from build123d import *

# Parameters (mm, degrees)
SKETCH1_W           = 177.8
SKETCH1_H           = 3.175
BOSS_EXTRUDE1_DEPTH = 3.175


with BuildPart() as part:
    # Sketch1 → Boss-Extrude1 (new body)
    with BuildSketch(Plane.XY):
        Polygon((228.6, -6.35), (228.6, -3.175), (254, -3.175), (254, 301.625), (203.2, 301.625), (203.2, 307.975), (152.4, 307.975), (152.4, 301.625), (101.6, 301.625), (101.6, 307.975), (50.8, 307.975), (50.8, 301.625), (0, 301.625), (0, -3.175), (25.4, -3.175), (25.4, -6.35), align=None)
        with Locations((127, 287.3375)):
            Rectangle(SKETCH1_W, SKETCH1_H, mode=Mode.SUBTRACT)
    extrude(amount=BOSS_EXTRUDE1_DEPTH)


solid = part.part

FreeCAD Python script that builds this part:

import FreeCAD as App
import Part
import Sketcher
Q = App.Units.Quantity

doc = App.newDocument("Part")
body = doc.addObject("PartDesign::Body", "Body")

# Sketch on XY plane
sketch1 = doc.addObject("Sketcher::SketchObject", "Sketch")
body.addObject(sketch1)
sketch1.AttachmentSupport = (doc.XY_Plane, [""])
sketch1.MapMode = "FlatFace"
sketch1.addGeometry(Part.LineSegment(App.Vector(228.6, -6.3, 0), App.Vector(228.6, -3.2, 0)), False)
sketch1.addGeometry(Part.LineSegment(App.Vector(228.6, -3.2, 0), App.Vector(254, -3.2, 0)), False)
sketch1.addGeometry(Part.LineSegment(App.Vector(254, -3.2, 0), App.Vector(254, 301.6, 0)), False)
sketch1.addGeometry(Part.LineSegment(App.Vector(254, 301.6, 0), App.Vector(203.2, 301.6, 0)), False)
sketch1.addGeometry(Part.LineSegment(App.Vector(203.2, 301.6, 0), App.Vector(203.2, 308, 0)), False)
sketch1.addGeometry(Part.LineSegment(App.Vector(203.2, 308, 0), App.Vector(152.4, 308, 0)), False)
sketch1.addGeometry(Part.LineSegment(App.Vector(152.4, 308, 0), App.Vector(152.4, 301.6, 0)), False)
sketch1.addGeometry(Part.LineSegment(App.Vector(152.4, 301.6, 0), App.Vector(101.6, 301.6, 0)), False)
sketch1.addGeometry(Part.LineSegment(App.Vector(101.6, 301.6, 0), App.Vector(101.6, 308, 0)), False)
sketch1.addGeometry(Part.LineSegment(App.Vector(101.6, 308, 0), App.Vector(50.8, 308, 0)), False)
sketch1.addGeometry(Part.LineSegment(App.Vector(50.8, 308, 0), App.Vector(50.8, 301.6, 0)), False)
sketch1.addGeometry(Part.LineSegment(App.Vector(50.8, 301.6, 0), App.Vector(0, 301.6, 0)), False)
sketch1.addGeometry(Part.LineSegment(App.Vector(0, 301.6, 0), App.Vector(0, -3.2, 0)), False)
sketch1.addGeometry(Part.LineSegment(App.Vector(0, -3.2, 0), App.Vector(25.4, -3.2, 0)), False)
sketch1.addGeometry(Part.LineSegment(App.Vector(25.4, -3.2, 0), App.Vector(25.4, -6.3, 0)), False)
sketch1.addGeometry(Part.LineSegment(App.Vector(25.4, -6.3, 0), App.Vector(228.6, -6.3, 0)), False)
sketch1.addGeometry(Part.LineSegment(App.Vector(215.9, 285.8, 0), App.Vector(38.1, 285.8, 0)), False)
sketch1.addGeometry(Part.LineSegment(App.Vector(38.1, 285.8, 0), App.Vector(38.1, 288.9, 0)), False)
sketch1.addGeometry(Part.LineSegment(App.Vector(38.1, 288.9, 0), App.Vector(215.9, 288.9, 0)), False)
sketch1.addGeometry(Part.LineSegment(App.Vector(215.9, 288.9, 0), App.Vector(215.9, 285.8, 0)), False)
sketch1.addConstraint(Sketcher.Constraint("Coincident", 0, 2, 1, 1))
sketch1.addConstraint(Sketcher.Constraint("Coincident", 1, 2, 2, 1))
sketch1.addConstraint(Sketcher.Constraint("Coincident", 2, 2, 3, 1))
sketch1.addConstraint(Sketcher.Constraint("Coincident", 3, 2, 4, 1))
sketch1.addConstraint(Sketcher.Constraint("Coincident", 4, 2, 5, 1))
sketch1.addConstraint(Sketcher.Constraint("Coincident", 5, 2, 6, 1))
sketch1.addConstraint(Sketcher.Constraint("Coincident", 6, 2, 7, 1))
sketch1.addConstraint(Sketcher.Constraint("Coincident", 7, 2, 8, 1))
sketch1.addConstraint(Sketcher.Constraint("Coincident", 8, 2, 9, 1))
sketch1.addConstraint(Sketcher.Constraint("Coincident", 9, 2, 10, 1))
sketch1.addConstraint(Sketcher.Constraint("Coincident", 10, 2, 11, 1))
sketch1.addConstraint(Sketcher.Constraint("Coincident", 11, 2, 12, 1))
sketch1.addConstraint(Sketcher.Constraint("Coincident", 12, 2, 13, 1))
sketch1.addConstraint(Sketcher.Constraint("Coincident", 13, 2, 14, 1))
sketch1.addConstraint(Sketcher.Constraint("Coincident", 14, 2, 15, 1))
sketch1.addConstraint(Sketcher.Constraint("Coincident", 15, 2, 0, 1))
sketch1.addConstraint(Sketcher.Constraint("Coincident", 16, 2, 17, 1))
sketch1.addConstraint(Sketcher.Constraint("Coincident", 17, 2, 18, 1))
sketch1.addConstraint(Sketcher.Constraint("Coincident", 18, 2, 19, 1))
sketch1.addConstraint(Sketcher.Constraint("Coincident", 19, 2, 16, 1))
sketch1.addConstraint(Sketcher.Constraint("Vertical", 0))
sketch1.addConstraint(Sketcher.Constraint("Horizontal", 1))
sketch1.addConstraint(Sketcher.Constraint("Vertical", 2))
sketch1.addConstraint(Sketcher.Constraint("Horizontal", 3))
sketch1.addConstraint(Sketcher.Constraint("Vertical", 4))
sketch1.addConstraint(Sketcher.Constraint("Horizontal", 5))
sketch1.addConstraint(Sketcher.Constraint("Vertical", 6))
sketch1.addConstraint(Sketcher.Constraint("Horizontal", 7))
sketch1.addConstraint(Sketcher.Constraint("Vertical", 8))
sketch1.addConstraint(Sketcher.Constraint("Horizontal", 9))
sketch1.addConstraint(Sketcher.Constraint("Vertical", 10))
sketch1.addConstraint(Sketcher.Constraint("Horizontal", 11))
sketch1.addConstraint(Sketcher.Constraint("Vertical", 12))
sketch1.addConstraint(Sketcher.Constraint("Horizontal", 13))
sketch1.addConstraint(Sketcher.Constraint("Vertical", 14))
sketch1.addConstraint(Sketcher.Constraint("Horizontal", 15))
sketch1.addConstraint(Sketcher.Constraint("Horizontal", 16))
sketch1.addConstraint(Sketcher.Constraint("Vertical", 17))
sketch1.addConstraint(Sketcher.Constraint("Horizontal", 18))
sketch1.addConstraint(Sketcher.Constraint("Vertical", 19))
sketch1.addConstraint(Sketcher.Constraint("PointOnObject", 11, 2, -2))
sketch1.addConstraint(Sketcher.Constraint("Horizontal", 3, 2, 6, 2))
sketch1.addConstraint(Sketcher.Constraint("Horizontal", 5, 2, 8, 2))
sketch1.addConstraint(Sketcher.Constraint("Horizontal", 7, 2, 10, 2))
sketch1.addConstraint(Sketcher.Constraint("Horizontal", 1, 2, 12, 2))
sketch1.addConstraint(Sketcher.Constraint("Equal", 3, 5))
sketch1.addConstraint(Sketcher.Constraint("Equal", 5, 7))
sketch1.addConstraint(Sketcher.Constraint("Equal", 7, 9))
sketch1.addConstraint(Sketcher.Constraint("Equal", 9, 11))
sketch1.addConstraint(Sketcher.Constraint("Equal", 1, 13))
sketch1.addConstraint(Sketcher.Constraint("Equal", 14, 17))
sketch1.addConstraint(Sketcher.Constraint("DistanceX", 1, 1, 1, 2, Q("1 in")))
sketch1.addConstraint(Sketcher.Constraint("DistanceX", 3, 2, 3, 1, Q("2 in")))
sketch1.addConstraint(Sketcher.Constraint("DistanceX", 16, 2, 16, 1, Q("7 in")))
sketch1.addConstraint(Sketcher.Constraint("DistanceY", 2, 1, 2, 2, Q("12 in")))
sketch1.addConstraint(Sketcher.Constraint("DistanceY", 4, 1, 4, 2, Q("0.25 in")))
sketch1.addConstraint(Sketcher.Constraint("DistanceX", -1, 1, 16, 2, Q("1.5 in")))
sketch1.addConstraint(Sketcher.Constraint("DistanceY", 17, 2, 10, 2, Q("0.5 in")))
sketch1.addConstraint(Sketcher.Constraint("DistanceY", 0, 1, 0, 2, Q("0.125 in")))
sketch1.addConstraint(Sketcher.Constraint("DistanceY", 14, 2, -1, 1, Q("0.25 in")))
pad1 = doc.addObject("PartDesign::Pad", "Pad")
body.addObject(pad1)
pad1.Profile = sketch1
pad1.Length = Q("0.125 in")

doc.recompute()
